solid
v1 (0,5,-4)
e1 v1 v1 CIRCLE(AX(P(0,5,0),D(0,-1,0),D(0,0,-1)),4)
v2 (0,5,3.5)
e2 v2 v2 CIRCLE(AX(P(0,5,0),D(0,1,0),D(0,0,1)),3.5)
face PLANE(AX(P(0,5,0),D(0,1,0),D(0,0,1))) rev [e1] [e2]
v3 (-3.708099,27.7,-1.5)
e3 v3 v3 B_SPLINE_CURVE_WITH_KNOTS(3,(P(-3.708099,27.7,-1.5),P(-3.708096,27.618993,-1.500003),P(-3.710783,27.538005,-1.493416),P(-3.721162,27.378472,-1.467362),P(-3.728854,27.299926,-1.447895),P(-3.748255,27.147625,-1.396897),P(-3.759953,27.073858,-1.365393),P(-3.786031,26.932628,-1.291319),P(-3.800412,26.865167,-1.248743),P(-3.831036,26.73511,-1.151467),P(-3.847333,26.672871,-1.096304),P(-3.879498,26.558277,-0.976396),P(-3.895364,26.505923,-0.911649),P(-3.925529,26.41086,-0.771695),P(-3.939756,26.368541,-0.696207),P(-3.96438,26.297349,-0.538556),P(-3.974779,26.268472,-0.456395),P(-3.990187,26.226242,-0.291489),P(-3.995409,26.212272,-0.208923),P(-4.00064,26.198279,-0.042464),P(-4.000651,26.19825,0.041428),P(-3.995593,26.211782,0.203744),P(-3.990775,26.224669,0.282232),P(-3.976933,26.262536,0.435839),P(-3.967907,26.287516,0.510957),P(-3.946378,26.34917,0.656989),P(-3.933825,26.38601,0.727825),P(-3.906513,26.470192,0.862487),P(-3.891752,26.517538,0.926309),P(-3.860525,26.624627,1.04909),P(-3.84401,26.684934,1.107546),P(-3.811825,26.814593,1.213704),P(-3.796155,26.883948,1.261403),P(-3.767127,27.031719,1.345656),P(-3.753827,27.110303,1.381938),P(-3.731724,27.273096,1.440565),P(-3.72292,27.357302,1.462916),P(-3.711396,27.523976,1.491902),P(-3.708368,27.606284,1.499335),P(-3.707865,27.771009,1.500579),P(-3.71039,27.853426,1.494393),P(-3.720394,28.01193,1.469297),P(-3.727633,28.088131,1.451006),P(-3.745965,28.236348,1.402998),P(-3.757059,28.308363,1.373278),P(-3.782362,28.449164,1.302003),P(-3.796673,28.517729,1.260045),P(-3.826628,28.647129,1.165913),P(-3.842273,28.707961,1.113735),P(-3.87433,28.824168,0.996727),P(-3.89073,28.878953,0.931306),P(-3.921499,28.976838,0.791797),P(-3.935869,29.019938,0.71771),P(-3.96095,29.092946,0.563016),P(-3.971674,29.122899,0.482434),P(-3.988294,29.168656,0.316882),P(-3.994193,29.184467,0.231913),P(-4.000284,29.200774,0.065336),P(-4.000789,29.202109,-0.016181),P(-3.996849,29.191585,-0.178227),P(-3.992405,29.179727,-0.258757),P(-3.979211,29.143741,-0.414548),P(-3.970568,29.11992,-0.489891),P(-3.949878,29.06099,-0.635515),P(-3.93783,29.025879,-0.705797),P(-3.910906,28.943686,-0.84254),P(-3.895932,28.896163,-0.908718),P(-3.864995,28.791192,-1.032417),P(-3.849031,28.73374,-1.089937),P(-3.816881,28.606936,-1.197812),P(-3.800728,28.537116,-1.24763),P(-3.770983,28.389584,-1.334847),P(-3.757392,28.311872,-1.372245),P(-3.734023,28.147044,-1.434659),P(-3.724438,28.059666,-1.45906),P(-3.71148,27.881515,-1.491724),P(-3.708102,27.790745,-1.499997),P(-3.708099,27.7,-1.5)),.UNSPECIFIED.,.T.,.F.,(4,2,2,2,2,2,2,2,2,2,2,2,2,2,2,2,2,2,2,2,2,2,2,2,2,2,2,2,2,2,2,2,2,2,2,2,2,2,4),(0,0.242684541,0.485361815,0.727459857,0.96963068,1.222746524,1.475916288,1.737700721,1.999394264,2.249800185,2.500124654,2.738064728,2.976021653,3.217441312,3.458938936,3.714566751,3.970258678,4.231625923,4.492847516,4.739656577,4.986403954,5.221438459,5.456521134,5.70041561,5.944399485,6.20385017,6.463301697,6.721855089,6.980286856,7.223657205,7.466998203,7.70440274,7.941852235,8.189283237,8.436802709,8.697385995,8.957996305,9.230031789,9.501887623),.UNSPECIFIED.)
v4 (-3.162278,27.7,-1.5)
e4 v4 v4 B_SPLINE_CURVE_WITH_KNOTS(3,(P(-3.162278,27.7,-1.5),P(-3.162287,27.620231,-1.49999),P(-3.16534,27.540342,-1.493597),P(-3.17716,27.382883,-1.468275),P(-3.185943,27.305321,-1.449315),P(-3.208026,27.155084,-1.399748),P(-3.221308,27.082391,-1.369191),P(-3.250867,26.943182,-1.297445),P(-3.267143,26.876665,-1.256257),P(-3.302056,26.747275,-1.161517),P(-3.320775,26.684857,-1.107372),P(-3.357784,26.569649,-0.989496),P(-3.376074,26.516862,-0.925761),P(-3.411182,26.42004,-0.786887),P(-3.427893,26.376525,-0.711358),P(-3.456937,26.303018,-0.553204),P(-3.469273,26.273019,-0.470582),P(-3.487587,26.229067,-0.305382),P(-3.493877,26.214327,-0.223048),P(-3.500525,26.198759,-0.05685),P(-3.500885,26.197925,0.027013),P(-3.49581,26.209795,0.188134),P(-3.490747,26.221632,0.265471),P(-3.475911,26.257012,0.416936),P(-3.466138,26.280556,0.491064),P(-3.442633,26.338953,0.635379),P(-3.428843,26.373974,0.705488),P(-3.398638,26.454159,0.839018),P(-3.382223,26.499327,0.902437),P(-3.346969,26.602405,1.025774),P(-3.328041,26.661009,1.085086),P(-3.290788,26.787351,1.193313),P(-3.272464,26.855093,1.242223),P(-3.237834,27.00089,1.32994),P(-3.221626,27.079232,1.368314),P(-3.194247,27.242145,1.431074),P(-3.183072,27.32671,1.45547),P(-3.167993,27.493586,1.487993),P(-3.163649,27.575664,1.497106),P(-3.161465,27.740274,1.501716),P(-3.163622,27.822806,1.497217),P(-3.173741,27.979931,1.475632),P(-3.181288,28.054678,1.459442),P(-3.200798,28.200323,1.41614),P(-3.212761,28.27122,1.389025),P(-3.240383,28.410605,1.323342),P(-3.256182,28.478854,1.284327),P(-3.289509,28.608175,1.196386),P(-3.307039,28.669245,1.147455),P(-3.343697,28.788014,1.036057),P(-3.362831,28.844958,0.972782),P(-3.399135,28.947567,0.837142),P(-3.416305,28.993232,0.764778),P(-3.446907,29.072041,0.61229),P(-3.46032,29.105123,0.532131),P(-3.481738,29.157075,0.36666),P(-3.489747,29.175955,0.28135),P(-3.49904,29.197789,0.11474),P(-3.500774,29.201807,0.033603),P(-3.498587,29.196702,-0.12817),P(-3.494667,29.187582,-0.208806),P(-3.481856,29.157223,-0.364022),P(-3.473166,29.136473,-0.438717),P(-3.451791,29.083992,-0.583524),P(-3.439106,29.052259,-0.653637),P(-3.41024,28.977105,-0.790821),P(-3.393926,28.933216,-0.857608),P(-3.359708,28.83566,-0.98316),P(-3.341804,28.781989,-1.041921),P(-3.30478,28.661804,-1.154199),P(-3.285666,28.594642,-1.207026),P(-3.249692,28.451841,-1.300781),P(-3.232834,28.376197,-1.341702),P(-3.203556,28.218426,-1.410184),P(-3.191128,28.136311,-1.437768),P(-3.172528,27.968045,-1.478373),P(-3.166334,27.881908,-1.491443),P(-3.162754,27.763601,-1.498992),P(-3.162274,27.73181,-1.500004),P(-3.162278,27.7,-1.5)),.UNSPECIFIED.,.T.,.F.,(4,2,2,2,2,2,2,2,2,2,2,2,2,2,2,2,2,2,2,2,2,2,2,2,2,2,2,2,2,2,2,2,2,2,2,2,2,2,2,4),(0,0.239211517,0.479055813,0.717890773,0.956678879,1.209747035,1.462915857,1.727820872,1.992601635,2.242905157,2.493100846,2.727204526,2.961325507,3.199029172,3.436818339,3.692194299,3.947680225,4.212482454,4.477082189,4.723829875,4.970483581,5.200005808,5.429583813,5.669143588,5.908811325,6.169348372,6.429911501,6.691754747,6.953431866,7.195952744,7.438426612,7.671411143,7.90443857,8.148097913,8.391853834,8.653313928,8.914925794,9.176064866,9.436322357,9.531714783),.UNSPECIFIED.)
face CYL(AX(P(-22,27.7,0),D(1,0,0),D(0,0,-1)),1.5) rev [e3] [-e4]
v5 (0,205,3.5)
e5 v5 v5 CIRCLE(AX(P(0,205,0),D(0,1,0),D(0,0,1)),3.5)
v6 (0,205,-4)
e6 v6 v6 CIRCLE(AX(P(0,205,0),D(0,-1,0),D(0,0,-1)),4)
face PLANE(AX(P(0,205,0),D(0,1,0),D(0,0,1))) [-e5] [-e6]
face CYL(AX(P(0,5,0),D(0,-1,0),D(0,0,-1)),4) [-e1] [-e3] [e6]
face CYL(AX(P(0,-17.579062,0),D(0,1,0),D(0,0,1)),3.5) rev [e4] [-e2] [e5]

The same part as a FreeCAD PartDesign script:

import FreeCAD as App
import Part
import Sketcher


def add_polygon(sketch, points):
    """Adds a closed chain of lines whose ends are joined by coincident constraints."""
    first, n = sketch.GeometryCount, len(points)
    for a, b in zip(points, points[1:] + points[:1]):
        sketch.addGeometry(Part.LineSegment(App.Vector(*a, 0), App.Vector(*b, 0)), False)
    for i in range(n):
        sketch.addConstraint(Sketcher.Constraint("Coincident", first + i, 2, first + (i + 1) % n, 1))

doc = App.newDocument("Part")
params = doc.addObject("Spreadsheet::Sheet", "Params")
for row, (alias, value) in enumerate([
    ("sketch1_width", "4 mm"),
    ("sketch1_height", "200 mm"),
    ("revolution_angle", "360 deg"),
    ("sketch2_diameter", "7 mm"),
    ("pocket1_length", "222.579062 mm"),
    ("sketch3_diameter", "3 mm"),
    ("pocket2_length", "22 mm"),
], start=1):
    params.set(f"A{row}", alias)
    params.set(f"B{row}", "=" + value)
    params.setAlias(f"B{row}", alias)

body = doc.addObject("PartDesign::Body", "Body")

# Sketch on XY plane
sketch1 = body.newObject("Sketcher::SketchObject", "Sketch")
sketch1.AttachmentSupport = (doc.getObject("XY_Plane"), [""])
sketch1.MapMode = "FlatFace"
add_polygon(sketch1, [(-4, 205), (-4, 5), (0, 5), (0, 205)])  # lines 0-3
sketch1.addConstraint(Sketcher.Constraint("Vertical", 0))
sketch1.addConstraint(Sketcher.Constraint("Horizontal", 1))
sketch1.addConstraint(Sketcher.Constraint("Vertical", 2))
sketch1.addConstraint(Sketcher.Constraint("Horizontal", 3))
sketch1.addConstraint(Sketcher.Constraint("PointOnObject", 1, 2, -2))
sketch1.addConstraint(Sketcher.Constraint("DistanceX", 1, 1, 1, 2, 4.0))
sketch1.addConstraint(Sketcher.Constraint("DistanceY", 0, 2, 0, 1, 200.0))
sketch1.addConstraint(Sketcher.Constraint("DistanceY", -1, 1, 0, 2, 5.0))
sketch1.setExpression("Constraints[9]", "Params.sketch1_width")
sketch1.setExpression("Constraints[10]", "Params.sketch1_height")
revolution = body.newObject("PartDesign::Revolution", "Revolution")
revolution.Profile = sketch1
revolution.ReferenceAxis = (sketch1, ["V_Axis"])
revolution.setExpression("Angle", "Params.revolution_angle")

# Sketch on XZ plane
sketch2 = body.newObject("Sketcher::SketchObject", "Sketch001")
sketch2.AttachmentSupport = (doc.getObject("XZ_Plane"), [""])
sketch2.MapMode = "FlatFace"
sketch2.AttachmentOffset = App.Placement(App.Vector(0, 0, -205), App.Rotation())
sketch2.addGeometry(Part.Circle(App.Vector(0, 0, 0), App.Vector(0, 0, 1), 3.5), False)
sketch2.addConstraint(Sketcher.Constraint("Coincident", 0, 3, -1, 1))
sketch2.addConstraint(Sketcher.Constraint("Diameter", 0, 7.0))
sketch2.setExpression("Constraints[1]", "Params.sketch2_diameter")
pocket1 = body.newObject("PartDesign::Pocket", "Pocket")
pocket1.Profile = sketch2
pocket1.setExpression("Length", "Params.pocket1_length")
pocket1.Reversed = True

# Sketch on YZ plane
sketch3 = body.newObject("Sketcher::SketchObject", "Sketch002")
sketch3.AttachmentSupport = (doc.getObject("YZ_Plane"), [""])
sketch3.MapMode = "FlatFace"
sketch3.addGeometry(Part.Circle(App.Vector(27.7, 0, 0), App.Vector(0, 0, 1), 1.5), False)
sketch3.addConstraint(Sketcher.Constraint("PointOnObject", 0, 3, -1))
sketch3.addConstraint(Sketcher.Constraint("Diameter", 0, 3.0))
sketch3.addConstraint(Sketcher.Constraint("DistanceX", -1, 1, 0, 3, 27.7))
sketch3.setExpression("Constraints[1]", "Params.sketch3_diameter")
pocket2 = body.newObject("PartDesign::Pocket", "Pocket001")
pocket2.Profile = sketch3
pocket2.setExpression("Length", "Params.pocket2_length")

doc.recompute()
